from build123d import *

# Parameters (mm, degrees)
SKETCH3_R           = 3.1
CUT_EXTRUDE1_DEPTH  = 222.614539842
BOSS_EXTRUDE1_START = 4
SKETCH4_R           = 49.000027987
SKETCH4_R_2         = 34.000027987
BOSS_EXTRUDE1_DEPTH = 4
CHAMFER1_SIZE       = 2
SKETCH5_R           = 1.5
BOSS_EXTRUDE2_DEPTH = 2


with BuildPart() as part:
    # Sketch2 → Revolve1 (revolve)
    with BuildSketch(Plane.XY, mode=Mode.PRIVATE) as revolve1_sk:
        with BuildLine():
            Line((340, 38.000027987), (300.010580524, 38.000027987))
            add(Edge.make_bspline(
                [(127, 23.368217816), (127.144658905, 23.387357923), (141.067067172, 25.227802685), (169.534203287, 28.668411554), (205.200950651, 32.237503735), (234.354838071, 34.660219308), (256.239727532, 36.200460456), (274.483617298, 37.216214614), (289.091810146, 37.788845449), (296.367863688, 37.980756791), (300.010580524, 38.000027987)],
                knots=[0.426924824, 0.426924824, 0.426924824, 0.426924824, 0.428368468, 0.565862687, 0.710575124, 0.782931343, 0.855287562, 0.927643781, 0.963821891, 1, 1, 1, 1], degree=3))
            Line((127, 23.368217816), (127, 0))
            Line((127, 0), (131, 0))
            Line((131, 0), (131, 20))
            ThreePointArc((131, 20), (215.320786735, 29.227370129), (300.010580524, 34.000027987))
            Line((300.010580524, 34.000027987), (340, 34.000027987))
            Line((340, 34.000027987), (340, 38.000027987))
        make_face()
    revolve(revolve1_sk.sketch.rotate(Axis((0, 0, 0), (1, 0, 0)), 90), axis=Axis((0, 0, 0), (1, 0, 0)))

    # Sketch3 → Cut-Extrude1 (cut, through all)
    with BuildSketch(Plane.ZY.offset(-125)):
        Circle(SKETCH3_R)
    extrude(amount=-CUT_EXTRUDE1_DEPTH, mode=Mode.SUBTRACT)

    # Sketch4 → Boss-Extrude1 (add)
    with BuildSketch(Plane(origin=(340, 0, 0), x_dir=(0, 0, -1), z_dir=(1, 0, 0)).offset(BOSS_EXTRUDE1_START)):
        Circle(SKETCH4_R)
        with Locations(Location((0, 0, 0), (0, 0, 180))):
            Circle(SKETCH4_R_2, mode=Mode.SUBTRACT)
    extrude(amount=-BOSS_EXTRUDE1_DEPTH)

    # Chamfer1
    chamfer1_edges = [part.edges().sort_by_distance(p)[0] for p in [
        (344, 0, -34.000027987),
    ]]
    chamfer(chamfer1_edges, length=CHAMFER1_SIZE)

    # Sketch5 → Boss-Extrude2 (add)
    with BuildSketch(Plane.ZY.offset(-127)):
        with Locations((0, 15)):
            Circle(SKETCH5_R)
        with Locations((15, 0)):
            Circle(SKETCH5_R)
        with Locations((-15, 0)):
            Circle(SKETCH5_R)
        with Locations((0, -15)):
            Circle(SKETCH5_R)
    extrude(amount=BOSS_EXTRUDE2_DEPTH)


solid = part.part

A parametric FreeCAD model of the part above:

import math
import FreeCAD as App
import Part
import Sketcher

V = App.Vector
Q = App.Units.Quantity


def edges_at(feature, points):
    """Names of the edges that pass closest to the given points."""
    edges = feature.Shape.Edges
    near = lambda p: min(range(len(edges)), key=lambda i: edges[i].distToShape(Part.Vertex(*p))[0])
    return sorted({f"Edge{near(p) + 1}" for p in points})

doc = App.newDocument("Part")
body = doc.addObject("PartDesign::Body", "Body")

# Sketch on XY plane
sketch1 = body.newObject("Sketcher::SketchObject", "Sketch")
sketch1.AttachmentSupport = (doc.getObject("XY_Plane"), [""])
sketch1.MapMode = "FlatFace"
sketch1.addGeometry(Part.LineSegment(V(340, 38.000028, 0), V(300.010581, 38.000028, 0)), False)
sketch1.addGeometry(Part.BSplineCurve([V(127, 23.368218, 0), V(127.144659, 23.387358, 0), V(141.067067, 25.227803, 0), V(169.534203, 28.668412, 0), V(205.200951, 32.237504, 0), V(234.354838, 34.660219, 0), V(256.239728, 36.20046, 0), V(274.483617, 37.216215, 0), V(289.09181, 37.788845, 0), V(296.367864, 37.980757, 0), V(300.010581, 38.000028, 0)], [4, 1, 1, 1, 1, 1, 1, 1, 4], [0.426924824, 0.428368468, 0.565862687, 0.710575124, 0.782931343, 0.855287562, 0.927643781, 0.963821891, 1], False, 3, [1, 1, 1, 1, 1, 1, 1, 1, 1, 1, 1], False), False)
sketch1.addGeometry(Part.LineSegment(V(127, 23.368218, 0), V(127, 0, 0)), False)
sketch1.addGeometry(Part.LineSegment(V(127, 0, 0), V(131, 0, 0)), False)
sketch1.addGeometry(Part.LineSegment(V(131, 0, 0), V(131, 20, 0)), False)
sketch1.addGeometry(Part.ArcOfCircle(Part.Circle(V(348.202359, -1574.940253, 0), V(0, 0, 1), 1609.661852), math.radians(91.715639), math.radians(97.754956)), False)
sketch1.addGeometry(Part.LineSegment(V(300.010581, 34.000028, 0), V(340, 34.000028, 0)), False)
sketch1.addGeometry(Part.LineSegment(V(340, 34.000028, 0), V(340, 38.000028, 0)), False)
sketch1.addConstraint(Sketcher.Constraint("Block", 1))
sketch1.addConstraint(Sketcher.Constraint("Coincident", 0, 2, 1, 2))
sketch1.addConstraint(Sketcher.Constraint("Coincident", 1, 1, 2, 1))
sketch1.addConstraint(Sketcher.Constraint("Coincident", 2, 2, 3, 1))
sketch1.addConstraint(Sketcher.Constraint("Coincident", 3, 2, 4, 1))
sketch1.addConstraint(Sketcher.Constraint("Coincident", 4, 2, 5, 2))
sketch1.addConstraint(Sketcher.Constraint("Coincident", 5, 1, 6, 1))
sketch1.addConstraint(Sketcher.Constraint("Coincident", 6, 2, 7, 1))
sketch1.addConstraint(Sketcher.Constraint("Coincident", 7, 2, 0, 1))
sketch1.addConstraint(Sketcher.Constraint("Horizontal", 0))
sketch1.addConstraint(Sketcher.Constraint("Vertical", 2))
sketch1.addConstraint(Sketcher.Constraint("Horizontal", 3))
sketch1.addConstraint(Sketcher.Constraint("Vertical", 4))
sketch1.addConstraint(Sketcher.Constraint("Horizontal", 6))
sketch1.addConstraint(Sketcher.Constraint("Vertical", 7))
sketch1.addConstraint(Sketcher.Constraint("PointOnObject", 2, 2, -1))
sketch1.addConstraint(Sketcher.Constraint("Equal", 0, 6))
sketch1.addConstraint(Sketcher.Constraint("Equal", 3, 7))
sketch1.addConstraint(Sketcher.Constraint("DistanceX", 3, 1, 3, 2, Q("4 mm")))
sketch1.addConstraint(Sketcher.Constraint("DistanceY", 4, 1, 4, 2, Q("20 mm")))
sketch1.addConstraint(Sketcher.Constraint("DistanceX", -1, 1, 6, 2, Q("340 mm")))
sketch1.addConstraint(Sketcher.Constraint("Radius", 5, Q("1609.661852 mm")))
revolution = body.newObject("PartDesign::Revolution", "Revolution")
revolution.Profile = sketch1
revolution.ReferenceAxis = (sketch1, ["H_Axis"])
revolution.Angle = 360

# Sketch on YZ plane
sketch2 = body.newObject("Sketcher::SketchObject", "Sketch001")
sketch2.AttachmentSupport = (doc.getObject("YZ_Plane"), [""])
sketch2.MapMode = "FlatFace"
sketch2.AttachmentOffset = App.Placement(V(0, 0, 125), App.Rotation())
sketch2.addGeometry(Part.Circle(V(0, 0, 0), V(0, 0, 1), 3.1), False)
sketch2.addConstraint(Sketcher.Constraint("Coincident", 0, 3, -1, 1))
sketch2.addConstraint(Sketcher.Constraint("Diameter", 0, Q("6.2 mm")))
pocket1 = body.newObject("PartDesign::Pocket", "Pocket")
pocket1.Profile = sketch2
pocket1.Type = "ThroughAll"
pocket1.Reversed = True

# Sketch on YZ plane
sketch3 = body.newObject("Sketcher::SketchObject", "Sketch002")
sketch3.AttachmentSupport = (doc.getObject("YZ_Plane"), [""])
sketch3.MapMode = "FlatFace"
sketch3.AttachmentOffset = App.Placement(V(0, 0, 344), App.Rotation())
sketch3.addGeometry(Part.Circle(V(0, 0, 0), V(0, 0, 1), 49.000028), False)
sketch3.addGeometry(Part.Circle(V(0, 0, 0), V(0, 0, 1), 34.000028), False)
sketch3.addConstraint(Sketcher.Constraint("Coincident", 0, 3, -1, 1))
sketch3.addConstraint(Sketcher.Constraint("Coincident", 1, 3, -1, 1))
sketch3.addConstraint(Sketcher.Constraint("Diameter", 0, Q("98.000056 mm")))
sketch3.addConstraint(Sketcher.Constraint("Diameter", 1, Q("68.000056 mm")))
pad1 = body.newObject("PartDesign::Pad", "Pad")
pad1.Profile = sketch3
pad1.Length = 4
pad1.Reversed = True
doc.recompute()

chamfer = body.newObject("PartDesign::Chamfer", "Chamfer")
chamfer.Base = (pad1, edges_at(pad1, [(344, 0, -34)]))
chamfer.Size = 2

# Sketch on YZ plane
sketch4 = body.newObject("Sketcher::SketchObject", "Sketch003")
sketch4.AttachmentSupport = (doc.getObject("YZ_Plane"), [""])
sketch4.MapMode = "FlatFace"
sketch4.AttachmentOffset = App.Placement(V(0, 0, 127), App.Rotation())
sketch4.addGeometry(Part.Circle(V(15, 0, 0), V(0, 0, 1), 1.5), False)
sketch4.addGeometry(Part.Circle(V(0, 15, 0), V(0, 0, 1), 1.5), False)
sketch4.addGeometry(Part.Circle(V(0, -15, 0), V(0, 0, 1), 1.5), False)
sketch4.addGeometry(Part.Circle(V(-15, 0, 0), V(0, 0, 1), 1.5), False)
sketch4.addConstraint(Sketcher.Constraint("Equal", 0, 1))
sketch4.addConstraint(Sketcher.Constraint("Equal", 1, 2))
sketch4.addConstraint(Sketcher.Constraint("Equal", 2, 3))
sketch4.addConstraint(Sketcher.Constraint("Symmetric", 1, 3, 2, 3, -1, 1))
sketch4.addConstraint(Sketcher.Constraint("Symmetric", 0, 3, 3, 3, -1, 1))
sketch4.addConstraint(Sketcher.Constraint("PointOnObject", 0, 3, -1))
sketch4.addConstraint(Sketcher.Constraint("PointOnObject", 1, 3, -2))
sketch4.addConstraint(Sketcher.Constraint("Diameter", 0, Q("3 mm")))
sketch4.addConstraint(Sketcher.Constraint("DistanceX", -1, 1, 0, 3, Q("15 mm")))
sketch4.addConstraint(Sketcher.Constraint("DistanceY", -1, 1, 1, 3, Q("15 mm")))
pad2 = body.newObject("PartDesign::Pad", "Pad001")
pad2.Profile = sketch4
pad2.Length = 2
pad2.Reversed = True

doc.recompute()
